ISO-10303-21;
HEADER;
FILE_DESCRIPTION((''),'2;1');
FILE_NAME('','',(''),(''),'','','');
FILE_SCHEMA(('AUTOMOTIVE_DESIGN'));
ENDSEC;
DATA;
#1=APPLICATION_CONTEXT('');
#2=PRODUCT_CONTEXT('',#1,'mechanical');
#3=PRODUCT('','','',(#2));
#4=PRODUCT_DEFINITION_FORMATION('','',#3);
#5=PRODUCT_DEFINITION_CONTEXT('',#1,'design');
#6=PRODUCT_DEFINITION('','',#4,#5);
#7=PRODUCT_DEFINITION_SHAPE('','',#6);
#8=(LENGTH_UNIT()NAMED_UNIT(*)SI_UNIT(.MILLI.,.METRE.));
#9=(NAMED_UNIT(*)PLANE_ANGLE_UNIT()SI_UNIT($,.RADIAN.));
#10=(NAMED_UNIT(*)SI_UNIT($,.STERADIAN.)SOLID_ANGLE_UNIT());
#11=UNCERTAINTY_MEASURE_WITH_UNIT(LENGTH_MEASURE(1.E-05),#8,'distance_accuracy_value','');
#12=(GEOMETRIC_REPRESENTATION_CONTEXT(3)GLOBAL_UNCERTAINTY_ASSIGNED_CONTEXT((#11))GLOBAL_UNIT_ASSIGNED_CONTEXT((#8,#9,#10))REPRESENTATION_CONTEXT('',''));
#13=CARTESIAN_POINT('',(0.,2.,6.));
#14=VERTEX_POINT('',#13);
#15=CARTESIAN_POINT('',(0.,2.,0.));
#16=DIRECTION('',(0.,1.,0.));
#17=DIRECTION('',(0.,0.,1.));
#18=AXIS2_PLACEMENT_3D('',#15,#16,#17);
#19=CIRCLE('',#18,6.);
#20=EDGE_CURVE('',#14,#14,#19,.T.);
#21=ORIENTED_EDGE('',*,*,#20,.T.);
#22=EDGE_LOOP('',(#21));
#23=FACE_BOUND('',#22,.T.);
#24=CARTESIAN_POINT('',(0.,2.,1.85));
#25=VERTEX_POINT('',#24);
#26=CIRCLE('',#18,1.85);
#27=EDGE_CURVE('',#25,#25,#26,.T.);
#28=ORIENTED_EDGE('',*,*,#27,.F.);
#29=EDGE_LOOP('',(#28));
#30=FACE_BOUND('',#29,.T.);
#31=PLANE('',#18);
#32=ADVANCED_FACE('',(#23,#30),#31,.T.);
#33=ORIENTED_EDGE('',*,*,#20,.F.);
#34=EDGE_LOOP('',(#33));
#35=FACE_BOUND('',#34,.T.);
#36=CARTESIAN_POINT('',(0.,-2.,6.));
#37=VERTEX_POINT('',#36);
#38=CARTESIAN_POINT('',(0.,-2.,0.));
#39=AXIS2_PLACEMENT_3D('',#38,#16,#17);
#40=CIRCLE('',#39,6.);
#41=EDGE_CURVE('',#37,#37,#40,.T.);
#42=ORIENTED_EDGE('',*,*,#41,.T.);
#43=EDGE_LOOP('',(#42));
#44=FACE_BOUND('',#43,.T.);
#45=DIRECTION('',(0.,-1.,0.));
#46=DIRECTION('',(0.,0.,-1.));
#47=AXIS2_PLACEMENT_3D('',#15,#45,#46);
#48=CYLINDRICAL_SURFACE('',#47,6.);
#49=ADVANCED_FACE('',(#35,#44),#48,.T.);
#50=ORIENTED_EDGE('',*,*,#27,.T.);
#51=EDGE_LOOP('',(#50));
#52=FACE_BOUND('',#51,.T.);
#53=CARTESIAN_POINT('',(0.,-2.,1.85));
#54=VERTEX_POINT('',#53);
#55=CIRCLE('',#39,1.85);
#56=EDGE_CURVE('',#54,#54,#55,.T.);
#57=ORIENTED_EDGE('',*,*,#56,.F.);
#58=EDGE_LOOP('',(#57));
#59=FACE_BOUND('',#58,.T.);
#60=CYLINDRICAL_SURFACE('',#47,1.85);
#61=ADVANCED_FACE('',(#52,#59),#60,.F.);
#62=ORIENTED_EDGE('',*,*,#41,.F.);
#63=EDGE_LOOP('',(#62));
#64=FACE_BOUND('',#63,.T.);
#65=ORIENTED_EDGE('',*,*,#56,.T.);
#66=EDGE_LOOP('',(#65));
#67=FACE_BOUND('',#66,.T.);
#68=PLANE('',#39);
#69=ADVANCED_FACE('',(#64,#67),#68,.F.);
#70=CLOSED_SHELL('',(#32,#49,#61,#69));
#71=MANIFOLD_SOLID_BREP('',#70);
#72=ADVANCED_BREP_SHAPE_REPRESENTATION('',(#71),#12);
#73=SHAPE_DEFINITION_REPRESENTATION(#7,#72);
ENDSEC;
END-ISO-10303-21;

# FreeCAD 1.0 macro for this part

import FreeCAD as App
import Part
import Sketcher
from FreeCAD import Vector

doc = App.newDocument("Part")
body = doc.addObject("PartDesign::Body", "Body")

sketch1 = doc.addObject("Sketcher::SketchObject", "Sketch")
body.addObject(sketch1)
sketch1.AttachmentSupport = (doc.XZ_Plane, [""])
sketch1.MapMode = "FlatFace"
sketch1.addGeometry([
    Part.Circle(Vector(0, 0, 0), Vector(0, 0, 1), 6),
    Part.Circle(Vector(0, 0, 0), Vector(0, 0, 1), 1.9),
], False)
sketch1.addConstraint([
    Sketcher.Constraint("Coincident", 0, 3, -1, 1),
    Sketcher.Constraint("Coincident", 1, 3, -1, 1),
    Sketcher.Constraint("Diameter", 0, 12.0),
    Sketcher.Constraint("Diameter", 1, 3.7),
])
pad1 = doc.addObject("PartDesign::Pad", "Pad")
body.addObject(pad1)
pad1.Profile = sketch1
pad1.Length = 4
pad1.Midplane = True

doc.recompute()
